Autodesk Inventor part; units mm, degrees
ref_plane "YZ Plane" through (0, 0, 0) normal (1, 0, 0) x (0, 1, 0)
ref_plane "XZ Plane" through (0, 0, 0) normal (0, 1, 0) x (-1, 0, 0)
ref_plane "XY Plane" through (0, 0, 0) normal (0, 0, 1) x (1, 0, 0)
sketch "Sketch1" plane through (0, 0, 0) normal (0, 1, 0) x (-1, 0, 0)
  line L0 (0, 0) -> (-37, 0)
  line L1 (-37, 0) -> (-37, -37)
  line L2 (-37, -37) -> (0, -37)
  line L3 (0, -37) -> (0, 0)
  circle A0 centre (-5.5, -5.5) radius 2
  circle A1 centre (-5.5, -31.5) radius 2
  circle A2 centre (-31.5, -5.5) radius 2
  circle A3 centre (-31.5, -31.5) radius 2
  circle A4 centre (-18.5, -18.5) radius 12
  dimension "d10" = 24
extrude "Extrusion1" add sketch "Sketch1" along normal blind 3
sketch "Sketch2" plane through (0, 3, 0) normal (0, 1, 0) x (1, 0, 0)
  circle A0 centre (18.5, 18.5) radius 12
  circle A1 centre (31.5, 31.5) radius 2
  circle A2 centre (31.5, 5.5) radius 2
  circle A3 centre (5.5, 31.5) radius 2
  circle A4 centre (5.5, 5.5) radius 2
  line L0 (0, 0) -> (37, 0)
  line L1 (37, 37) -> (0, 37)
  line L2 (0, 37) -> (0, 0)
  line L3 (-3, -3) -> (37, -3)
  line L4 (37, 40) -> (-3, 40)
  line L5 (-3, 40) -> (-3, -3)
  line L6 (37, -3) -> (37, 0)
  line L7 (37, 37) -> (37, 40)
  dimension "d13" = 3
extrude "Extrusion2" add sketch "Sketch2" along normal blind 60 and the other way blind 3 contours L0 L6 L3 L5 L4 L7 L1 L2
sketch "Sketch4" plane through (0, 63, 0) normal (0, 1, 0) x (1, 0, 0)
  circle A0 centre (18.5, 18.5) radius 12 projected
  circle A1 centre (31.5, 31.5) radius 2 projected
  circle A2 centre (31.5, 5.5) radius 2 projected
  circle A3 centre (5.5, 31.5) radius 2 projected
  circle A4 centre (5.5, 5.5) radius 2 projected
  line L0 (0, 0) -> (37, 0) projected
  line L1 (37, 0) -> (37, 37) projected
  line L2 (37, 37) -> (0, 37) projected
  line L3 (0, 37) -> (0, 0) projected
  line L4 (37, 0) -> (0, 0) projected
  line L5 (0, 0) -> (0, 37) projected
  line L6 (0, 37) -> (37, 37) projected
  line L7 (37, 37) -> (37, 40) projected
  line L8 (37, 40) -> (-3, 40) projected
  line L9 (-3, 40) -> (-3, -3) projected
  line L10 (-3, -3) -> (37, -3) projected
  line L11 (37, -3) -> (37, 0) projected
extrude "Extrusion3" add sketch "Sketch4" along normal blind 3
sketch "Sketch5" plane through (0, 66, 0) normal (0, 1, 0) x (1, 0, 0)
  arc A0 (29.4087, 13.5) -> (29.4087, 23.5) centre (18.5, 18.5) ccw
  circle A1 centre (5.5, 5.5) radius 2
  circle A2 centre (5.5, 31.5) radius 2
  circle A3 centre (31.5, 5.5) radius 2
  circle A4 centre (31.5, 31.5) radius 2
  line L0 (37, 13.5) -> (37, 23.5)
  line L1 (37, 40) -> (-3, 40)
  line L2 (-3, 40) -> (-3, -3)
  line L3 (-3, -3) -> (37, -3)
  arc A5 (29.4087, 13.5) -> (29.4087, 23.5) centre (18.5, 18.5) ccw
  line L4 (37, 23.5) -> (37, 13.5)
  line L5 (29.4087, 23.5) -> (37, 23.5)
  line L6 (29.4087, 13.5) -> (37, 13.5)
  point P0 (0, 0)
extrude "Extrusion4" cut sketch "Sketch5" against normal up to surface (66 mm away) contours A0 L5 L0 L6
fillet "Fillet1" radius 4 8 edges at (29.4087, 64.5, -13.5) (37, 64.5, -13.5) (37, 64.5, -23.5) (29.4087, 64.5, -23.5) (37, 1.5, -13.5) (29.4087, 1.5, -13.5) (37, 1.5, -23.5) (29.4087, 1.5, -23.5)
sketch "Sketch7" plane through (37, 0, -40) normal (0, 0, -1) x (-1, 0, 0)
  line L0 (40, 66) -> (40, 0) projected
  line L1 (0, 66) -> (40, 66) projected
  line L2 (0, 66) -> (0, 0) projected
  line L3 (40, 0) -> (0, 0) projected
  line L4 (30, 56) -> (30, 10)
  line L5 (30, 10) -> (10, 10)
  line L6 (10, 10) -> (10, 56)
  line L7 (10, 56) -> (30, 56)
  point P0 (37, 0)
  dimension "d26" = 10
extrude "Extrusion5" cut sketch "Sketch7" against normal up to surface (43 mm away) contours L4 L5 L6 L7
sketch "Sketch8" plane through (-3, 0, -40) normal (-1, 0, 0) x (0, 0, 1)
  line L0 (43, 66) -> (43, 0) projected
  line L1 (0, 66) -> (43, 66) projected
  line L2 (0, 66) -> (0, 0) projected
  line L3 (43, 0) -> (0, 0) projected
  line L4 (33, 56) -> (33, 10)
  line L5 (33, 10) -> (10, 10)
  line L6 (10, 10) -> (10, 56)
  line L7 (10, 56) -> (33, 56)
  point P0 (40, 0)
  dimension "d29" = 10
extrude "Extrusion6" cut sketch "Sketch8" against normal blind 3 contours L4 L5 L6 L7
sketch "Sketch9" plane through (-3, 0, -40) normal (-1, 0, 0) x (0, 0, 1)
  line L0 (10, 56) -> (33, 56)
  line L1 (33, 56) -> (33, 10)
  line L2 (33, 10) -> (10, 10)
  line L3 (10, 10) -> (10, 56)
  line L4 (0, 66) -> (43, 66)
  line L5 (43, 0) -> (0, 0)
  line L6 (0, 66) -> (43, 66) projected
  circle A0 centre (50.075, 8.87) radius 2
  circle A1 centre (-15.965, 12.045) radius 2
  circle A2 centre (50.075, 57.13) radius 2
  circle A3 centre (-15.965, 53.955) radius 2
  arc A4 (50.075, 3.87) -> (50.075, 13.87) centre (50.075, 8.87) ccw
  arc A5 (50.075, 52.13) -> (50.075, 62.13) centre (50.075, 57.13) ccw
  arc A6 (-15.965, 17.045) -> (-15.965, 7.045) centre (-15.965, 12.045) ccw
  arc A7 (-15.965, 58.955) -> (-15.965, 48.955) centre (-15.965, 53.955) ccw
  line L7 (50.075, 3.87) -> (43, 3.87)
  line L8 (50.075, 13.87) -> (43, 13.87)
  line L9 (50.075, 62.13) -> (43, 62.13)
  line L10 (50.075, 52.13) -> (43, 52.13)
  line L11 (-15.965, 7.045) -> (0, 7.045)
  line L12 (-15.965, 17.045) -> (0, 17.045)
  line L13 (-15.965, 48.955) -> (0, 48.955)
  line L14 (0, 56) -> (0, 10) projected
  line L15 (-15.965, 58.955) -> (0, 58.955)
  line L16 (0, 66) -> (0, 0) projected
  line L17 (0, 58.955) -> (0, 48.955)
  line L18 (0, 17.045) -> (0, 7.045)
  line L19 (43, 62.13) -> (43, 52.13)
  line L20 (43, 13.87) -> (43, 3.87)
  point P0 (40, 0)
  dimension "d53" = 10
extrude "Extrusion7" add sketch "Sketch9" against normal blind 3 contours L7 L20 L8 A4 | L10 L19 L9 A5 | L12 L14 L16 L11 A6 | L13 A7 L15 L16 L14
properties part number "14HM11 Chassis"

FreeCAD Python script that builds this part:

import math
import FreeCAD as App
import Part
import Sketcher


def edges_at(feature, points):
    """Names of the edges that pass closest to the given points."""
    edges = feature.Shape.Edges
    near = lambda p: min(range(len(edges)), key=lambda i: edges[i].distToShape(Part.Vertex(*p))[0])
    return sorted({f"Edge{near(p) + 1}" for p in points})


def add_polygon(sketch, points):
    """Adds a closed chain of lines whose ends are joined by coincident constraints."""
    first, n = sketch.GeometryCount, len(points)
    for a, b in zip(points, points[1:] + points[:1]):
        sketch.addGeometry(Part.LineSegment(App.Vector(*a, 0), App.Vector(*b, 0)), False)
    for i in range(n):
        sketch.addConstraint(Sketcher.Constraint("Coincident", first + i, 2, first + (i + 1) % n, 1))

doc = App.newDocument("Part")
body = doc.addObject("PartDesign::Body", "Body")

# Sketch on XZ plane
sketch1 = body.newObject("Sketcher::SketchObject", "Sketch")
sketch1.AttachmentSupport = (doc.getObject("XZ_Plane"), [""])
sketch1.MapMode = "FlatFace"
add_polygon(sketch1, [(0, -37), (0, 0), (37, 0), (37, -37)])  # lines 0-3
sketch1.addGeometry(Part.Circle(App.Vector(31.5, -31.5, 0), App.Vector(0, 0, 1), 2), False)  # 4
sketch1.addGeometry(Part.Circle(App.Vector(5.5, -31.5, 0), App.Vector(0, 0, 1), 2), False)  # 5
sketch1.addGeometry(Part.Circle(App.Vector(31.5, -5.5, 0), App.Vector(0, 0, 1), 2), False)  # 6
sketch1.addGeometry(Part.Circle(App.Vector(18.5, -18.5, 0), App.Vector(0, 0, 1), 12), False)  # 7
sketch1.addGeometry(Part.Circle(App.Vector(5.5, -5.5, 0), App.Vector(0, 0, 1), 2), False)  # 8
sketch1.addConstraint(Sketcher.Constraint("Vertical", 0))
sketch1.addConstraint(Sketcher.Constraint("Horizontal", 1))
sketch1.addConstraint(Sketcher.Constraint("Vertical", 2))
sketch1.addConstraint(Sketcher.Constraint("Horizontal", 3))
sketch1.addConstraint(Sketcher.Constraint("Coincident", 0, 2, -1, 1))
sketch1.addConstraint(Sketcher.Constraint("Equal", 4, 5))
sketch1.addConstraint(Sketcher.Constraint("Equal", 5, 6))
sketch1.addConstraint(Sketcher.Constraint("Equal", 6, 8))
sketch1.addConstraint(Sketcher.Constraint("Horizontal", 4, 3, 5, 3))
sketch1.addConstraint(Sketcher.Constraint("Horizontal", 6, 3, 8, 3))
sketch1.addConstraint(Sketcher.Constraint("Vertical", 4, 3, 6, 3))
sketch1.addConstraint(Sketcher.Constraint("Vertical", 5, 3, 8, 3))
sketch1.addConstraint(Sketcher.Constraint("Equal", 3, 0))
sketch1.addConstraint(Sketcher.Constraint("Diameter", 7, 24.0))
sketch1.addConstraint(Sketcher.Constraint("Diameter", 4, 4.0))
sketch1.addConstraint(Sketcher.Constraint("DistanceX", 1, 1, 1, 2, 37.0))
sketch1.addConstraint(Sketcher.Constraint("DistanceX", 5, 3, 4, 3, 26.0))
sketch1.addConstraint(Sketcher.Constraint("DistanceY", 4, 3, 6, 3, 26.0))
sketch1.addConstraint(Sketcher.Constraint("DistanceX", 7, 3, 4, 3, 13.0))
sketch1.addConstraint(Sketcher.Constraint("DistanceY", 4, 3, 7, 3, 13.0))
sketch1.addConstraint(Sketcher.Constraint("DistanceX", -1, 1, 4, 3, 31.5))
sketch1.addConstraint(Sketcher.Constraint("DistanceY", 4, 3, -1, 1, 31.5))
pad1 = body.newObject("PartDesign::Pad", "Pad")
pad1.Profile = sketch1
pad1.Length = 3
pad1.Reversed = True

# Sketch on XZ plane
sketch2 = body.newObject("Sketcher::SketchObject", "Sketch001")
sketch2.AttachmentSupport = (doc.getObject("XZ_Plane"), [""])
sketch2.MapMode = "FlatFace"
sketch2.AttachmentOffset = App.Placement(App.Vector(0, 0, -3), App.Rotation())
add_polygon(sketch2, [(37, 0), (0, 0), (0, -37), (37, -37), (37, -40), (-3, -40), (-3, 3), (37, 3)])  # lines 0-7
sketch2.addConstraint(Sketcher.Constraint("Horizontal", 0))
sketch2.addConstraint(Sketcher.Constraint("Vertical", 1))
sketch2.addConstraint(Sketcher.Constraint("Horizontal", 2))
sketch2.addConstraint(Sketcher.Constraint("Vertical", 3))
sketch2.addConstraint(Sketcher.Constraint("Horizontal", 4))
sketch2.addConstraint(Sketcher.Constraint("Vertical", 5))
sketch2.addConstraint(Sketcher.Constraint("Horizontal", 6))
sketch2.addConstraint(Sketcher.Constraint("Vertical", 7))
sketch2.addConstraint(Sketcher.Constraint("Coincident", 0, 2, -1, 1))
sketch2.addConstraint(Sketcher.Constraint("Vertical", 3, 2, 6, 2))
sketch2.addConstraint(Sketcher.Constraint("Equal", 2, 1))
sketch2.addConstraint(Sketcher.Constraint("Equal", 3, 7))
sketch2.addConstraint(Sketcher.Constraint("DistanceY", 3, 2, 3, 1, 3.0))
sketch2.addConstraint(Sketcher.Constraint("DistanceX", 4, 2, -1, 1, 3.0))
sketch2.addConstraint(Sketcher.Constraint("DistanceX", 0, 2, 0, 1, 37.0))
pad2 = body.newObject("PartDesign::Pad", "Pad001")
pad2.Profile = sketch2
pad2.Type = "TwoLengths"
pad2.Length = 60
pad2.Length2 = 3
pad2.Reversed = True

# Sketch on XZ plane
sketch3 = body.newObject("Sketcher::SketchObject", "Sketch002")
sketch3.AttachmentSupport = (doc.getObject("XZ_Plane"), [""])
sketch3.MapMode = "FlatFace"
sketch3.AttachmentOffset = App.Placement(App.Vector(0, 0, -63), App.Rotation())
add_polygon(sketch3, [(37, -40), (-3, -40), (-3, 3), (37, 3)])  # lines 0-3
sketch3.addGeometry(Part.Circle(App.Vector(5.5, -5.5, 0), App.Vector(0, 0, 1), 2), False)  # 4
sketch3.addGeometry(Part.Circle(App.Vector(31.5, -5.5, 0), App.Vector(0, 0, 1), 2), False)  # 5
sketch3.addGeometry(Part.Circle(App.Vector(5.5, -31.5, 0), App.Vector(0, 0, 1), 2), False)  # 6
sketch3.addGeometry(Part.Circle(App.Vector(18.5, -18.5, 0), App.Vector(0, 0, 1), 12), False)  # 7
sketch3.addGeometry(Part.Circle(App.Vector(31.5, -31.5, 0), App.Vector(0, 0, 1), 2), False)  # 8
sketch3.addConstraint(Sketcher.Constraint("Horizontal", 0))
sketch3.addConstraint(Sketcher.Constraint("Vertical", 1))
sketch3.addConstraint(Sketcher.Constraint("Horizontal", 2))
sketch3.addConstraint(Sketcher.Constraint("Vertical", 3))
sketch3.addConstraint(Sketcher.Constraint("Equal", 4, 5))
sketch3.addConstraint(Sketcher.Constraint("Equal", 5, 6))
sketch3.addConstraint(Sketcher.Constraint("Equal", 6, 8))
sketch3.addConstraint(Sketcher.Constraint("Horizontal", 4, 3, 5, 3))
sketch3.addConstraint(Sketcher.Constraint("Horizontal", 6, 3, 8, 3))
sketch3.addConstraint(Sketcher.Constraint("Vertical", 4, 3, 6, 3))
sketch3.addConstraint(Sketcher.Constraint("Vertical", 5, 3, 8, 3))
sketch3.addConstraint(Sketcher.Constraint("Diameter", 4, 4.0))
sketch3.addConstraint(Sketcher.Constraint("Diameter", 7, 24.0))
sketch3.addConstraint(Sketcher.Constraint("DistanceX", 0, 2, 0, 1, 40.0))
sketch3.addConstraint(Sketcher.Constraint("DistanceY", 1, 1, 1, 2, 43.0))
sketch3.addConstraint(Sketcher.Constraint("DistanceX", 0, 2, -1, 1, 3.0))
sketch3.addConstraint(Sketcher.Constraint("DistanceY", 0, 2, -1, 1, 40.0))
sketch3.addConstraint(Sketcher.Constraint("DistanceX", 4, 3, 5, 3, 26.0))
sketch3.addConstraint(Sketcher.Constraint("DistanceY", 6, 3, 4, 3, 26.0))
sketch3.addConstraint(Sketcher.Constraint("DistanceX", 4, 3, 7, 3, 13.0))
sketch3.addConstraint(Sketcher.Constraint("DistanceY", 7, 3, 4, 3, 13.0))
sketch3.addConstraint(Sketcher.Constraint("DistanceX", -1, 1, 4, 3, 5.5))
sketch3.addConstraint(Sketcher.Constraint("DistanceY", 4, 3, -1, 1, 5.5))
pad3 = body.newObject("PartDesign::Pad", "Pad002")
pad3.Profile = sketch3
pad3.Length = 3
pad3.Reversed = True

# Sketch on XZ plane
sketch4 = body.newObject("Sketcher::SketchObject", "Sketch003")
sketch4.AttachmentSupport = (doc.getObject("XZ_Plane"), [""])
sketch4.MapMode = "FlatFace"
sketch4.AttachmentOffset = App.Placement(App.Vector(0, 0, -66), App.Rotation())
sketch4.addGeometry(Part.ArcOfCircle(Part.Circle(App.Vector(18, -18, 0), App.Vector(0, 0, 1), 12), math.radians(-25), math.radians(25)), False)
sketch4.addGeometry(Part.LineSegment(App.Vector(29, -14, 0), App.Vector(37, -14, 0)), False)
sketch4.addGeometry(Part.LineSegment(App.Vector(37, -14, 0), App.Vector(37, -24, 0)), False)
sketch4.addGeometry(Part.LineSegment(App.Vector(37, -24, 0), App.Vector(29, -24, 0)), False)
sketch4.addConstraint(Sketcher.Constraint("Coincident", 0, 2, 1, 1))
sketch4.addConstraint(Sketcher.Constraint("Coincident", 1, 2, 2, 1))
sketch4.addConstraint(Sketcher.Constraint("Coincident", 2, 2, 3, 1))
sketch4.addConstraint(Sketcher.Constraint("Coincident", 3, 2, 0, 1))
sketch4.addConstraint(Sketcher.Constraint("Horizontal", 1))
sketch4.addConstraint(Sketcher.Constraint("Vertical", 2))
sketch4.addConstraint(Sketcher.Constraint("Horizontal", 3))
sketch4.addConstraint(Sketcher.Constraint("Vertical", 0, 2, 3, 2))
sketch4.addConstraint(Sketcher.Constraint("Radius", 0, 12.0))
sketch4.addConstraint(Sketcher.Constraint("DistanceY", 2, 2, 2, 1, 10.0))
sketch4.addConstraint(Sketcher.Constraint("DistanceX", -1, 1, 1, 2, 37.0))
sketch4.addConstraint(Sketcher.Constraint("DistanceX", -1, 1, 0, 3, 18.5))
sketch4.addConstraint(Sketcher.Constraint("DistanceY", 0, 3, -1, 1, 18.5))
pocket1 = body.newObject("PartDesign::Pocket", "Pocket")
pocket1.Profile = sketch4
pocket1.Length = 66
pocket1.Reversed = True
doc.recompute()

fillet = body.newObject("PartDesign::Fillet", "Fillet")
fillet.Base = (pocket1, edges_at(pocket1, [
    (29.409, 64.5, -13.5),
    (37, 64.5, -13.5),
    (37, 64.5, -23.5),
    (29.409, 64.5, -23.5),
    (37, 1.5, -13.5),
    (29.409, 1.5, -13.5),
    (37, 1.5, -23.5),
    (29.409, 1.5, -23.5),
]))
fillet.Radius = 4

# Sketch on XY plane
sketch5 = body.newObject("Sketcher::SketchObject", "Sketch004")
sketch5.AttachmentSupport = (doc.getObject("XY_Plane"), [""])
sketch5.MapMode = "FlatFace"
sketch5.AttachmentOffset = App.Placement(App.Vector(0, 0, -40), App.Rotation())
add_polygon(sketch5, [(7, 10), (7, 56), (27, 56), (27, 10)])  # lines 0-3
sketch5.addConstraint(Sketcher.Constraint("Vertical", 0))
sketch5.addConstraint(Sketcher.Constraint("Horizontal", 1))
sketch5.addConstraint(Sketcher.Constraint("Vertical", 2))
sketch5.addConstraint(Sketcher.Constraint("Horizontal", 3))
sketch5.addConstraint(Sketcher.Constraint("DistanceY", -1, 1, 2, 2, 10.0))
sketch5.addConstraint(Sketcher.Constraint("DistanceX", 1, 1, 1, 2, 20.0))
sketch5.addConstraint(Sketcher.Constraint("DistanceY", 0, 1, 0, 2, 46.0))
sketch5.addConstraint(Sketcher.Constraint("DistanceX", -1, 1, 0, 2, 7.0))
pocket2 = body.newObject("PartDesign::Pocket", "Pocket001")
pocket2.Profile = sketch5
pocket2.Length = 43
pocket2.Reversed = True

# Sketch on YZ plane
sketch6 = body.newObject("Sketcher::SketchObject", "Sketch005")
sketch6.AttachmentSupport = (doc.getObject("YZ_Plane"), [""])
sketch6.MapMode = "FlatFace"
sketch6.AttachmentOffset = App.Placement(App.Vector(0, 0, -3), App.Rotation())
add_polygon(sketch6, [(10, -7), (56, -7), (56, -30), (10, -30)])  # lines 0-3
sketch6.addConstraint(Sketcher.Constraint("Horizontal", 0))
sketch6.addConstraint(Sketcher.Constraint("Vertical", 1))
sketch6.addConstraint(Sketcher.Constraint("Horizontal", 2))
sketch6.addConstraint(Sketcher.Constraint("Vertical", 3))
sketch6.addConstraint(Sketcher.Constraint("DistanceX", -1, 1, 2, 2, 10.0))
sketch6.addConstraint(Sketcher.Constraint("DistanceX", 0, 1, 0, 2, 46.0))
sketch6.addConstraint(Sketcher.Constraint("DistanceY", 1, 2, 1, 1, 23.0))
sketch6.addConstraint(Sketcher.Constraint("DistanceY", 0, 2, -1, 1, 7.0))
pocket3 = body.newObject("PartDesign::Pocket", "Pocket002")
pocket3.Profile = sketch6
pocket3.Length = 3
pocket3.Reversed = True

# Sketch on YZ plane
sketch7 = body.newObject("Sketcher::SketchObject", "Sketch006")
sketch7.AttachmentSupport = (doc.getObject("YZ_Plane"), [""])
sketch7.MapMode = "FlatFace"
sketch7.AttachmentOffset = App.Placement(App.Vector(0, 0, -3), App.Rotation())
sketch7.addGeometry(Part.LineSegment(App.Vector(3.9, 3, 0), App.Vector(3.9, 10.1, 0)), False)
sketch7.addGeometry(Part.ArcOfCircle(Part.Circle(App.Vector(8.9, 10.1, 0), App.Vector(0, 0, 1), 5), math.radians(0), math.radians(180)), False)
sketch7.addGeometry(Part.LineSegment(App.Vector(13.9, 10.1, 0), App.Vector(13.9, 3, 0)), False)
sketch7.addGeometry(Part.LineSegment(App.Vector(13.9, 3, 0), App.Vector(3.9, 3, 0)), False)
sketch7.addGeometry(Part.Circle(App.Vector(8.9, 10.1, 0), App.Vector(0, 0, 1), 2), False)
sketch7.addGeometry(Part.LineSegment(App.Vector(52.1, 3, 0), App.Vector(52.1, 10.1, 0)), False)
sketch7.addGeometry(Part.ArcOfCircle(Part.Circle(App.Vector(57.1, 10.1, 0), App.Vector(0, 0, 1), 5), math.radians(0), math.radians(180)), False)
sketch7.addGeometry(Part.LineSegment(App.Vector(62.1, 10.1, 0), App.Vector(62.1, 3, 0)), False)
sketch7.addGeometry(Part.LineSegment(App.Vector(62.1, 3, 0), App.Vector(52.1, 3, 0)), False)
sketch7.addGeometry(Part.Circle(App.Vector(57.1, 10.1, 0), App.Vector(0, 0, 1), 2), False)
sketch7.addGeometry(Part.LineSegment(App.Vector(17, -40, 0), App.Vector(17, -56, 0)), False)
sketch7.addGeometry(Part.ArcOfCircle(Part.Circle(App.Vector(12, -56, 0), App.Vector(0, 0, 1), 5), math.radians(180), math.radians(360)), False)
sketch7.addGeometry(Part.LineSegment(App.Vector(7, -56, 0), App.Vector(7, -40, 0)), False)
sketch7.addGeometry(Part.LineSegment(App.Vector(7, -40, 0), App.Vector(17, -40, 0)), False)
sketch7.addGeometry(Part.Circle(App.Vector(12, -56, 0), App.Vector(0, 0, 1), 2), False)
sketch7.addGeometry(Part.LineSegment(App.Vector(49, -56, 0), App.Vector(49, -40, 0)), False)
sketch7.addGeometry(Part.LineSegment(App.Vector(49, -40, 0), App.Vector(59, -40, 0)), False)
sketch7.addGeometry(Part.LineSegment(App.Vector(59, -40, 0), App.Vector(59, -56, 0)), False)
sketch7.addGeometry(Part.ArcOfCircle(Part.Circle(App.Vector(54, -56, 0), App.Vector(0, 0, 1), 5), math.radians(180), math.radians(360)), False)
sketch7.addGeometry(Part.Circle(App.Vector(54, -56, 0), App.Vector(0, 0, 1), 2), False)
sketch7.addConstraint(Sketcher.Constraint("Tangent", 0, 2, 1, 2))
sketch7.addConstraint(Sketcher.Constraint("Tangent", 1, 1, 2, 1))
sketch7.addConstraint(Sketcher.Constraint("Coincident", 2, 2, 3, 1))
sketch7.addConstraint(Sketcher.Constraint("Coincident", 3, 2, 0, 1))
sketch7.addConstraint(Sketcher.Constraint("Tangent", 5, 2, 6, 2))
sketch7.addConstraint(Sketcher.Constraint("Tangent", 6, 1, 7, 1))
sketch7.addConstraint(Sketcher.Constraint("Coincident", 7, 2, 8, 1))
sketch7.addConstraint(Sketcher.Constraint("Coincident", 8, 2, 5, 1))
sketch7.addConstraint(Sketcher.Constraint("Tangent", 10, 2, 11, 2))
sketch7.addConstraint(Sketcher.Constraint("Tangent", 11, 1, 12, 1))
sketch7.addConstraint(Sketcher.Constraint("Coincident", 12, 2, 13, 1))
sketch7.addConstraint(Sketcher.Constraint("Coincident", 13, 2, 10, 1))
sketch7.addConstraint(Sketcher.Constraint("Coincident", 15, 2, 16, 1))
sketch7.addConstraint(Sketcher.Constraint("Coincident", 16, 2, 17, 1))
sketch7.addConstraint(Sketcher.Constraint("Tangent", 17, 2, 18, 2))
sketch7.addConstraint(Sketcher.Constraint("Tangent", 18, 1, 15, 1))
sketch7.addConstraint(Sketcher.Constraint("Vertical", 0))
sketch7.addConstraint(Sketcher.Constraint("Vertical", 2))
sketch7.addConstraint(Sketcher.Constraint("Horizontal", 3))
sketch7.addConstraint(Sketcher.Constraint("Vertical", 5))
sketch7.addConstraint(Sketcher.Constraint("Vertical", 7))
sketch7.addConstraint(Sketcher.Constraint("Horizontal", 8))
sketch7.addConstraint(Sketcher.Constraint("Vertical", 10))
sketch7.addConstraint(Sketcher.Constraint("Vertical", 12))
sketch7.addConstraint(Sketcher.Constraint("Horizontal", 13))
sketch7.addConstraint(Sketcher.Constraint("Vertical", 15))
sketch7.addConstraint(Sketcher.Constraint("Horizontal", 16))
sketch7.addConstraint(Sketcher.Constraint("Vertical", 17))
sketch7.addConstraint(Sketcher.Constraint("Coincident", 4, 3, 1, 3))
sketch7.addConstraint(Sketcher.Constraint("Coincident", 9, 3, 6, 3))
sketch7.addConstraint(Sketcher.Constraint("Coincident", 14, 3, 11, 3))
sketch7.addConstraint(Sketcher.Constraint("Coincident", 19, 3, 18, 3))
sketch7.addConstraint(Sketcher.Constraint("Equal", 1, 6))
sketch7.addConstraint(Sketcher.Constraint("Equal", 4, 9))
sketch7.addConstraint(Sketcher.Constraint("Equal", 6, 11))
sketch7.addConstraint(Sketcher.Constraint("Equal", 9, 14))
sketch7.addConstraint(Sketcher.Constraint("Equal", 11, 18))
sketch7.addConstraint(Sketcher.Constraint("Equal", 14, 19))
sketch7.addConstraint(Sketcher.Constraint("Horizontal", 4, 3, 6, 3))
sketch7.addConstraint(Sketcher.Constraint("Horizontal", 14, 3, 18, 3))
sketch7.addConstraint(Sketcher.Constraint("Horizontal", 3, 2, 7, 2))
sketch7.addConstraint(Sketcher.Constraint("Horizontal", 13, 2, 15, 2))
sketch7.addConstraint(Sketcher.Constraint("Radius", 1, 5.0))
sketch7.addConstraint(Sketcher.Constraint("Diameter", 4, 4.0))
sketch7.addConstraint(Sketcher.Constraint("DistanceY", -1, 1, 2, 2, 3.0))
sketch7.addConstraint(Sketcher.Constraint("DistanceY", 12, 2, -1, 1, 40.0))
sketch7.addConstraint(Sketcher.Constraint("DistanceY", 0, 1, 0, 2, 7.075))
sketch7.addConstraint(Sketcher.Constraint("DistanceY", 10, 2, 10, 1, 15.965))
sketch7.addConstraint(Sketcher.Constraint("DistanceX", -1, 1, 1, 3, 8.87))
sketch7.addConstraint(Sketcher.Constraint("DistanceX", -1, 1, 6, 3, 57.13))
sketch7.addConstraint(Sketcher.Constraint("DistanceX", 11, 3, 18, 3, 41.91))
sketch7.addConstraint(Sketcher.Constraint("DistanceX", -1, 1, 11, 3, 12.045))
pad4 = body.newObject("PartDesign::Pad", "Pad003")
pad4.Profile = sketch7
pad4.Length = 3

doc.recompute()
